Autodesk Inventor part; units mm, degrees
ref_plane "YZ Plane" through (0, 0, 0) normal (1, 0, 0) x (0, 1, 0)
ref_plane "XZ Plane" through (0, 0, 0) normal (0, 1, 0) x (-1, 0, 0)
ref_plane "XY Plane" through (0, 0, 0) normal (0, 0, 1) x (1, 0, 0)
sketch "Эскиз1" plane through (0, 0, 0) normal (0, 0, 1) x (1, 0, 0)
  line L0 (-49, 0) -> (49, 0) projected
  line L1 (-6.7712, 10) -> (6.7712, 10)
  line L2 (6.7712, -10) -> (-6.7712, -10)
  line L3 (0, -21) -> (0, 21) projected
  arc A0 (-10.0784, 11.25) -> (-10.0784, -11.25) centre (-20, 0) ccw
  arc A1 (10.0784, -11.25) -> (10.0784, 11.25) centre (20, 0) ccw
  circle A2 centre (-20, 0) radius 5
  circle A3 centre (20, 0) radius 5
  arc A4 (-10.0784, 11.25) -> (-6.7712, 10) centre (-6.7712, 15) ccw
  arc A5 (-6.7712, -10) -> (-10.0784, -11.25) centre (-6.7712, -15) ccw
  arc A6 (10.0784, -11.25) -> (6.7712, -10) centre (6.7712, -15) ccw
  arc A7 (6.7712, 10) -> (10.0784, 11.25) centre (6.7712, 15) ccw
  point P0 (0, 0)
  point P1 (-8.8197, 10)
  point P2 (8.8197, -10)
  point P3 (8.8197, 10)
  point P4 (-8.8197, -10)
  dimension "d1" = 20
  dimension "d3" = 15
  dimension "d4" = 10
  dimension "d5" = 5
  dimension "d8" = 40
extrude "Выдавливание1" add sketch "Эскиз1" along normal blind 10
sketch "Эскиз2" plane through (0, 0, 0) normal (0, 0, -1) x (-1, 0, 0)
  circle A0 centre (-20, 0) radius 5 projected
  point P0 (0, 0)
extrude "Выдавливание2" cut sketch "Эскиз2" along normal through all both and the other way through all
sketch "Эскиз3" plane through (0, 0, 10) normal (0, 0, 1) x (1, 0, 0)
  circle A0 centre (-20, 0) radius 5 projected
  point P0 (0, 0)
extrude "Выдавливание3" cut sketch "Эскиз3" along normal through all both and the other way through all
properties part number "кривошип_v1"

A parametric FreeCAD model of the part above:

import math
import FreeCAD as App
import Part
import Sketcher

doc = App.newDocument("Part")
body = doc.addObject("PartDesign::Body", "Body")

# Sketch on XY plane
sketch1 = body.newObject("Sketcher::SketchObject", "Sketch")
sketch1.AttachmentSupport = (doc.getObject("XY_Plane"), [""])
sketch1.MapMode = "FlatFace"
sketch1.addGeometry(Part.ArcOfCircle(Part.Circle(App.Vector(-20, 0, 0), App.Vector(0, 0, 1), 15), math.radians(49), math.radians(311)), False)
sketch1.addGeometry(Part.ArcOfCircle(Part.Circle(App.Vector(-6.8, -15, 0), App.Vector(0, 0, 1), 5), math.radians(90), math.radians(131)), False)
sketch1.addGeometry(Part.LineSegment(App.Vector(-6.8, -10, 0), App.Vector(6.8, -10, 0)), False)
sketch1.addGeometry(Part.ArcOfCircle(Part.Circle(App.Vector(6.8, -15, 0), App.Vector(0, 0, 1), 5), math.radians(49), math.radians(90)), False)
sketch1.addGeometry(Part.ArcOfCircle(Part.Circle(App.Vector(20, 0, 0), App.Vector(0, 0, 1), 15), math.radians(-131), math.radians(131)), False)
sketch1.addGeometry(Part.ArcOfCircle(Part.Circle(App.Vector(6.8, 15, 0), App.Vector(0, 0, 1), 5), math.radians(-90), math.radians(-49)), False)
sketch1.addGeometry(Part.LineSegment(App.Vector(6.8, 10, 0), App.Vector(-6.8, 10, 0)), False)
sketch1.addGeometry(Part.ArcOfCircle(Part.Circle(App.Vector(-6.8, 15, 0), App.Vector(0, 0, 1), 5), math.radians(-131), math.radians(-90)), False)
sketch1.addConstraint(Sketcher.Constraint("Tangent", 0, 2, 1, 2))
sketch1.addConstraint(Sketcher.Constraint("Tangent", 1, 1, 2, 1))
sketch1.addConstraint(Sketcher.Constraint("Tangent", 2, 2, 3, 2))
sketch1.addConstraint(Sketcher.Constraint("Tangent", 3, 1, 4, 1))
sketch1.addConstraint(Sketcher.Constraint("Tangent", 4, 2, 5, 2))
sketch1.addConstraint(Sketcher.Constraint("Tangent", 5, 1, 6, 1))
sketch1.addConstraint(Sketcher.Constraint("Tangent", 6, 2, 7, 2))
sketch1.addConstraint(Sketcher.Constraint("Tangent", 7, 1, 0, 1))
sketch1.addConstraint(Sketcher.Constraint("Horizontal", 2))
sketch1.addConstraint(Sketcher.Constraint("Horizontal", 6))
sketch1.addConstraint(Sketcher.Constraint("Equal", 1, 3))
sketch1.addConstraint(Sketcher.Constraint("Equal", 0, 4))
sketch1.addConstraint(Sketcher.Constraint("Equal", 3, 5))
sketch1.addConstraint(Sketcher.Constraint("Equal", 5, 7))
sketch1.addConstraint(Sketcher.Constraint("Symmetric", 0, 3, 4, 3, -1, 1))
sketch1.addConstraint(Sketcher.Constraint("Symmetric", 3, 3, 5, 3, -1))
sketch1.addConstraint(Sketcher.Constraint("Radius", 0, 15.0))
sketch1.addConstraint(Sketcher.Constraint("Radius", 1, 5.0))
sketch1.addConstraint(Sketcher.Constraint("DistanceX", 0, 3, -1, 1, 20.0))
sketch1.addConstraint(Sketcher.Constraint("DistanceY", 1, 3, -1, 1, 15.0))
pad1 = body.newObject("PartDesign::Pad", "Pad")
pad1.Profile = sketch1
pad1.Length = 10

# Sketch on XY plane
sketch2 = body.newObject("Sketcher::SketchObject", "Sketch001")
sketch2.AttachmentSupport = (doc.getObject("XY_Plane"), [""])
sketch2.MapMode = "FlatFace"
sketch2.addGeometry(Part.Circle(App.Vector(20, 0, 0), App.Vector(0, 0, 1), 5), False)
sketch2.addConstraint(Sketcher.Constraint("PointOnObject", 0, 3, -1))
sketch2.addConstraint(Sketcher.Constraint("Diameter", 0, 10.0))
sketch2.addConstraint(Sketcher.Constraint("DistanceX", -1, 1, 0, 3, 20.0))
pocket1 = body.newObject("PartDesign::Pocket", "Pocket")
pocket1.Profile = sketch2
pocket1.Type = "ThroughAll"
pocket1.Midplane = True

# Sketch on XY plane
sketch3 = body.newObject("Sketcher::SketchObject", "Sketch002")
sketch3.AttachmentSupport = (doc.getObject("XY_Plane"), [""])
sketch3.MapMode = "FlatFace"
sketch3.AttachmentOffset = App.Placement(App.Vector(0, 0, 10), App.Rotation())
sketch3.addGeometry(Part.Circle(App.Vector(-20, 0, 0), App.Vector(0, 0, 1), 5), False)
sketch3.addConstraint(Sketcher.Constraint("PointOnObject", 0, 3, -1))
sketch3.addConstraint(Sketcher.Constraint("Diameter", 0, 10.0))
sketch3.addConstraint(Sketcher.Constraint("DistanceX", 0, 3, -1, 1, 20.0))
pocket2 = body.newObject("PartDesign::Pocket", "Pocket001")
pocket2.Profile = sketch3
pocket2.Type = "ThroughAll"
pocket2.Midplane = True

doc.recompute()
